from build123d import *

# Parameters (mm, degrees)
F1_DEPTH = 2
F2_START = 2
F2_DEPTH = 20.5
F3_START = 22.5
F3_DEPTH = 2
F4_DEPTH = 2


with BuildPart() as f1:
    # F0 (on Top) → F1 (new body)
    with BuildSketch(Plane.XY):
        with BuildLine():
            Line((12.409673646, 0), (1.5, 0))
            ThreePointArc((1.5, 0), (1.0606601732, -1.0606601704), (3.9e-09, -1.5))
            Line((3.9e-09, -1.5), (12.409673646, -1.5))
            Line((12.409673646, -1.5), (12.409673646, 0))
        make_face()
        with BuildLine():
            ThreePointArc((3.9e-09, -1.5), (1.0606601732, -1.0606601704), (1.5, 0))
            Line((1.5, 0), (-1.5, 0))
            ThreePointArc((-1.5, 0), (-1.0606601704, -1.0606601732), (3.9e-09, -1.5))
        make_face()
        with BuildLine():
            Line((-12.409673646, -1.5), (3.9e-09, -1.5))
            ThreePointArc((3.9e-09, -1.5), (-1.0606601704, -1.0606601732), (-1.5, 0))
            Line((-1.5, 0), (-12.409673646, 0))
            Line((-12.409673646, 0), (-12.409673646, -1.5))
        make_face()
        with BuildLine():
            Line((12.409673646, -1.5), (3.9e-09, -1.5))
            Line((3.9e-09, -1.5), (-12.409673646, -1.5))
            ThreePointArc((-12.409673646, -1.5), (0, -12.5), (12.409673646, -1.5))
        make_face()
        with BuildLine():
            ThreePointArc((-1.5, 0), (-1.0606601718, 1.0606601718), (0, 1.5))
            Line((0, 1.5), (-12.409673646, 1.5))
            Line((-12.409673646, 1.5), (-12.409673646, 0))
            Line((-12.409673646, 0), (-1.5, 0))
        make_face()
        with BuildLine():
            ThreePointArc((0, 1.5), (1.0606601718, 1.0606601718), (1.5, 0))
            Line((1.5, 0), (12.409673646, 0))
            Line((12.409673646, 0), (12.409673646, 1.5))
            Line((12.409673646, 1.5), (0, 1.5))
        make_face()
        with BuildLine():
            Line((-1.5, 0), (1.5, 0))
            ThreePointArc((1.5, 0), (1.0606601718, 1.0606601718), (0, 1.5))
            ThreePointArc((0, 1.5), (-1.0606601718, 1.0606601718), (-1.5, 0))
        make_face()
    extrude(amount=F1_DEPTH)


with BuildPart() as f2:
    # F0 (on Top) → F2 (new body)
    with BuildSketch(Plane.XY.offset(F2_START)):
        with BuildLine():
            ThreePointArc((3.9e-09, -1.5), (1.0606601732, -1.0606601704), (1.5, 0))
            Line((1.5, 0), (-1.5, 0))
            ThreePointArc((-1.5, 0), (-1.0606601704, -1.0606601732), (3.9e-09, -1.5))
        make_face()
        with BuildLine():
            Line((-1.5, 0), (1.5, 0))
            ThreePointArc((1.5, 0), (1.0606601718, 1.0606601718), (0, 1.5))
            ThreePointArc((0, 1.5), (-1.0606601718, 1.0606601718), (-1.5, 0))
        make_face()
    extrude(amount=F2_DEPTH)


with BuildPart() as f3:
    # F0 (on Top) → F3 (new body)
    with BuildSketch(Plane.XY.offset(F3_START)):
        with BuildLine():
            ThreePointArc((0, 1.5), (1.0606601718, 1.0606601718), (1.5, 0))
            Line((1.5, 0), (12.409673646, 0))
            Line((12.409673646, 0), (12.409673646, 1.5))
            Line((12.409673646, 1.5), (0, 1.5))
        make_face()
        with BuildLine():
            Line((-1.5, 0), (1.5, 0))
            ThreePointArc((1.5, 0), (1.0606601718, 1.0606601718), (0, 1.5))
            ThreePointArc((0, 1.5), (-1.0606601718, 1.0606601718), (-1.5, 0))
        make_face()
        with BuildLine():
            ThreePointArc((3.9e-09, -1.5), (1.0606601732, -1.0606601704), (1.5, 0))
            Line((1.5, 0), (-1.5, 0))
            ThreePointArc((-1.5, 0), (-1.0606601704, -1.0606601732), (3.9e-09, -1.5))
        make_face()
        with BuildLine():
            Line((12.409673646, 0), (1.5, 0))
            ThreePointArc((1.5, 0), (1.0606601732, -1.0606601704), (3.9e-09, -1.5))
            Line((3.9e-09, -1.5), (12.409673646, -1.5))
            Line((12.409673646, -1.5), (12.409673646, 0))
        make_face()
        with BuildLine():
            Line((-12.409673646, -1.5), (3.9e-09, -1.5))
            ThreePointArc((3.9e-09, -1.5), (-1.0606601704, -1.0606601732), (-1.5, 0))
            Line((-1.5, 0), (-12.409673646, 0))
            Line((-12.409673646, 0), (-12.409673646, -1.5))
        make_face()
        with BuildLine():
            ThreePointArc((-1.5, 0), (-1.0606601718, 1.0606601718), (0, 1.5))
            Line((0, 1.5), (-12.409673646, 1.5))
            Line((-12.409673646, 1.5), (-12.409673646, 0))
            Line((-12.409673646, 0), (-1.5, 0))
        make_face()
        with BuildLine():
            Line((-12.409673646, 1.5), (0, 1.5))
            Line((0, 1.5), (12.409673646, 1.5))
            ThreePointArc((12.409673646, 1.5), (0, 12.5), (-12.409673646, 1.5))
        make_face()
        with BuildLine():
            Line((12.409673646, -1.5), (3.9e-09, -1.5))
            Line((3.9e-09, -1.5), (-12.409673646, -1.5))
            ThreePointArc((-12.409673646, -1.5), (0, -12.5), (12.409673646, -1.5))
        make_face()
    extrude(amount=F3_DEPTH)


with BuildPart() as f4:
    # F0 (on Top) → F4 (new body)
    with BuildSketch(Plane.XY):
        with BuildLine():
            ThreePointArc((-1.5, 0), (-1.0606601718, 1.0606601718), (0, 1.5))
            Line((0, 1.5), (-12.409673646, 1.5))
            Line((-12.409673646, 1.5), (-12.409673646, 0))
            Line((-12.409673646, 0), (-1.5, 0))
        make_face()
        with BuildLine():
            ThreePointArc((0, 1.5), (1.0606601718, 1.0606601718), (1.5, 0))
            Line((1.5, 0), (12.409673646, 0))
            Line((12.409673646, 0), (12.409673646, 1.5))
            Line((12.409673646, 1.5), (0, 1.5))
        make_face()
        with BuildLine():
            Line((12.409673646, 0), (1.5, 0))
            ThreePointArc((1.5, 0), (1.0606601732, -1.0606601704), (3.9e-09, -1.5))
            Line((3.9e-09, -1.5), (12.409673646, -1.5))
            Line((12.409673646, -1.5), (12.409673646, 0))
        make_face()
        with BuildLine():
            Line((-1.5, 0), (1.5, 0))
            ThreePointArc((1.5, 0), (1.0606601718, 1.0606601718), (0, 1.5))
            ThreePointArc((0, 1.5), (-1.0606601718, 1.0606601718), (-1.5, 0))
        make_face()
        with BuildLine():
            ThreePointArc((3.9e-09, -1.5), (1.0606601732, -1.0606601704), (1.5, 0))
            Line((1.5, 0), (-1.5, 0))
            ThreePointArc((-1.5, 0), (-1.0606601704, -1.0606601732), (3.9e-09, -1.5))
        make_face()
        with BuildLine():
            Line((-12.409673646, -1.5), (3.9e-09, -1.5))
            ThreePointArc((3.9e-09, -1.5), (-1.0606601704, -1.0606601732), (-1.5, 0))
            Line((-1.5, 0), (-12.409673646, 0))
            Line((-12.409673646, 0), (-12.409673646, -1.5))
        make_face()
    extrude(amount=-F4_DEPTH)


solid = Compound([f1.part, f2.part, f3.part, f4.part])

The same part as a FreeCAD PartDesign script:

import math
import FreeCAD as App
import Part
import Sketcher
from FreeCAD import Vector

doc = App.newDocument("Part")
body = doc.addObject("PartDesign::Body", "Body")

sketch1 = body.newObject("Sketcher::SketchObject", "Sketch")
sketch1.AttachmentSupport = (doc.getObject("XY_Plane"), [""])
sketch1.MapMode = "FlatFace"
sketch1.addGeometry(Part.LineSegment(Vector(12.409674, 1.5, 0), Vector(-12.409674, 1.5, 0)), False)
sketch1.addGeometry(Part.LineSegment(Vector(-12.409674, 1.5, 0), Vector(-12.409674, -1.5, 0)), False)
sketch1.addGeometry(Part.ArcOfCircle(Part.Circle(Vector(0, 0, 0), Vector(0, 0, 1), 12.5), math.radians(-173.107897), math.radians(-6.892103)), False)
sketch1.addGeometry(Part.LineSegment(Vector(12.409674, -1.5, 0), Vector(12.409674, 1.5, 0)), False)
sketch1.addConstraint(Sketcher.Constraint("Coincident", 0, 2, 1, 1))
sketch1.addConstraint(Sketcher.Constraint("Coincident", 1, 2, 2, 1))
sketch1.addConstraint(Sketcher.Constraint("Coincident", 2, 2, 3, 1))
sketch1.addConstraint(Sketcher.Constraint("Coincident", 3, 2, 0, 1))
sketch1.addConstraint(Sketcher.Constraint("Horizontal", 0))
sketch1.addConstraint(Sketcher.Constraint("Vertical", 1))
sketch1.addConstraint(Sketcher.Constraint("Vertical", 3))
sketch1.addConstraint(Sketcher.Constraint("Coincident", 2, 3, -1, 1))
sketch1.addConstraint(Sketcher.Constraint("Symmetric", 0, 2, 2, 2, -1, 1))
sketch1.addConstraint(Sketcher.Constraint("Radius", 2, 12.5))
sketch1.addConstraint(Sketcher.Constraint("DistanceY", 1, 2, 1, 1, 3.0))
pad1 = body.newObject("PartDesign::Pad", "Pad")
pad1.Profile = sketch1
pad1.Length = 2
body2 = doc.addObject("PartDesign::Body", "Body001")

sketch2 = body2.newObject("Sketcher::SketchObject", "Sketch001")
sketch2.AttachmentSupport = (doc.getObject("XY_Plane001"), [""])
sketch2.MapMode = "FlatFace"
sketch2.AttachmentOffset = App.Placement(Vector(0, 0, 2), App.Rotation())
sketch2.addGeometry(Part.ArcOfCircle(Part.Circle(Vector(0, 0, 0), Vector(0, 0, 1), 1.5), math.radians(-90), math.radians(0)), False)
sketch2.addGeometry(Part.ArcOfCircle(Part.Circle(Vector(0, 0, 0), Vector(0, 0, 1), 1.5), math.radians(0), math.radians(90)), False)
sketch2.addGeometry(Part.ArcOfCircle(Part.Circle(Vector(0, 0, 0), Vector(0, 0, 1), 1.5), math.radians(90), math.radians(180)), False)
sketch2.addGeometry(Part.ArcOfCircle(Part.Circle(Vector(0, 0, 0), Vector(0, 0, 1), 1.5), math.radians(180), math.radians(270)), False)
sketch2.addConstraint(Sketcher.Constraint("Tangent", 0, 2, 1, 1))
sketch2.addConstraint(Sketcher.Constraint("Tangent", 1, 2, 2, 1))
sketch2.addConstraint(Sketcher.Constraint("Tangent", 2, 2, 3, 1))
sketch2.addConstraint(Sketcher.Constraint("Tangent", 3, 2, 0, 1))
sketch2.addConstraint(Sketcher.Constraint("Coincident", 0, 3, -1, 1))
sketch2.addConstraint(Sketcher.Constraint("Equal", 0, 1))
sketch2.addConstraint(Sketcher.Constraint("PointOnObject", 0, 2, -1))
sketch2.addConstraint(Sketcher.Constraint("PointOnObject", 1, 2, -2))
sketch2.addConstraint(Sketcher.Constraint("PointOnObject", 2, 2, -1))
sketch2.addConstraint(Sketcher.Constraint("PointOnObject", 3, 2, -2))
sketch2.addConstraint(Sketcher.Constraint("Radius", 0, 1.5))
pad2 = body2.newObject("PartDesign::Pad", "Pad001")
pad2.Profile = sketch2
pad2.Length = 20.5
body3 = doc.addObject("PartDesign::Body", "Body002")

sketch3 = body3.newObject("Sketcher::SketchObject", "Sketch002")
sketch3.AttachmentSupport = (doc.getObject("XY_Plane002"), [""])
sketch3.MapMode = "FlatFace"
sketch3.AttachmentOffset = App.Placement(Vector(0, 0, 22.5), App.Rotation())
sketch3.addGeometry(Part.LineSegment(Vector(-12.409674, 1.5, 0), Vector(-12.409674, -1.5, 0)), False)
sketch3.addGeometry(Part.ArcOfCircle(Part.Circle(Vector(0, 0, 0), Vector(0, 0, 1), 12.5), math.radians(-173.107897), math.radians(-6.892103)), False)
sketch3.addGeometry(Part.LineSegment(Vector(12.409674, -1.5, 0), Vector(12.409674, 1.5, 0)), False)
sketch3.addGeometry(Part.ArcOfCircle(Part.Circle(Vector(0, 0, 0), Vector(0, 0, 1), 12.5), math.radians(6.892103), math.radians(173.107897)), False)
sketch3.addConstraint(Sketcher.Constraint("Coincident", 0, 2, 1, 1))
sketch3.addConstraint(Sketcher.Constraint("Coincident", 1, 2, 2, 1))
sketch3.addConstraint(Sketcher.Constraint("Coincident", 2, 2, 3, 1))
sketch3.addConstraint(Sketcher.Constraint("Coincident", 3, 2, 0, 1))
sketch3.addConstraint(Sketcher.Constraint("Vertical", 0))
sketch3.addConstraint(Sketcher.Constraint("Vertical", 2))
sketch3.addConstraint(Sketcher.Constraint("Coincident", 1, 3, -1, 1))
sketch3.addConstraint(Sketcher.Constraint("Coincident", 3, 3, -1, 1))
sketch3.addConstraint(Sketcher.Constraint("Equal", 1, 3))
sketch3.addConstraint(Sketcher.Constraint("Horizontal", 0, 2, 1, 2))
sketch3.addConstraint(Sketcher.Constraint("Radius", 1, 12.5))
sketch3.addConstraint(Sketcher.Constraint("DistanceY", 0, 2, 0, 1, 3.0))
pad3 = body3.newObject("PartDesign::Pad", "Pad002")
pad3.Profile = sketch3
pad3.Length = 2
body4 = doc.addObject("PartDesign::Body", "Body003")

sketch4 = body4.newObject("Sketcher::SketchObject", "Sketch003")
sketch4.AttachmentSupport = (doc.getObject("XY_Plane003"), [""])
sketch4.MapMode = "FlatFace"
sketch4.addGeometry(Part.LineSegment(Vector(-12.409674, 1.5, 0), Vector(-12.409674, -1.5, 0)), False)
sketch4.addGeometry(Part.LineSegment(Vector(-12.409674, -1.5, 0), Vector(12.409674, -1.5, 0)), False)
sketch4.addGeometry(Part.LineSegment(Vector(12.409674, -1.5, 0), Vector(12.409674, 1.5, 0)), False)
sketch4.addGeometry(Part.LineSegment(Vector(12.409674, 1.5, 0), Vector(-12.409674, 1.5, 0)), False)
sketch4.addConstraint(Sketcher.Constraint("Coincident", 0, 2, 1, 1))
sketch4.addConstraint(Sketcher.Constraint("Coincident", 1, 2, 2, 1))
sketch4.addConstraint(Sketcher.Constraint("Coincident", 2, 2, 3, 1))
sketch4.addConstraint(Sketcher.Constraint("Coincident", 3, 2, 0, 1))
sketch4.addConstraint(Sketcher.Constraint("Vertical", 0))
sketch4.addConstraint(Sketcher.Constraint("Horizontal", 1))
sketch4.addConstraint(Sketcher.Constraint("Vertical", 2))
sketch4.addConstraint(Sketcher.Constraint("Horizontal", 3))
sketch4.addConstraint(Sketcher.Constraint("Symmetric", 0, 2, 2, 2, -1, 1))
sketch4.addConstraint(Sketcher.Constraint("DistanceY", 0, 2, 0, 1, 3.0))
sketch4.addConstraint(Sketcher.Constraint("DistanceX", 1, 1, 1, 2, 24.819347))
pad4 = body4.newObject("PartDesign::Pad", "Pad003")
pad4.Profile = sketch4
pad4.Length = 2
pad4.Reversed = True

doc.recompute()
